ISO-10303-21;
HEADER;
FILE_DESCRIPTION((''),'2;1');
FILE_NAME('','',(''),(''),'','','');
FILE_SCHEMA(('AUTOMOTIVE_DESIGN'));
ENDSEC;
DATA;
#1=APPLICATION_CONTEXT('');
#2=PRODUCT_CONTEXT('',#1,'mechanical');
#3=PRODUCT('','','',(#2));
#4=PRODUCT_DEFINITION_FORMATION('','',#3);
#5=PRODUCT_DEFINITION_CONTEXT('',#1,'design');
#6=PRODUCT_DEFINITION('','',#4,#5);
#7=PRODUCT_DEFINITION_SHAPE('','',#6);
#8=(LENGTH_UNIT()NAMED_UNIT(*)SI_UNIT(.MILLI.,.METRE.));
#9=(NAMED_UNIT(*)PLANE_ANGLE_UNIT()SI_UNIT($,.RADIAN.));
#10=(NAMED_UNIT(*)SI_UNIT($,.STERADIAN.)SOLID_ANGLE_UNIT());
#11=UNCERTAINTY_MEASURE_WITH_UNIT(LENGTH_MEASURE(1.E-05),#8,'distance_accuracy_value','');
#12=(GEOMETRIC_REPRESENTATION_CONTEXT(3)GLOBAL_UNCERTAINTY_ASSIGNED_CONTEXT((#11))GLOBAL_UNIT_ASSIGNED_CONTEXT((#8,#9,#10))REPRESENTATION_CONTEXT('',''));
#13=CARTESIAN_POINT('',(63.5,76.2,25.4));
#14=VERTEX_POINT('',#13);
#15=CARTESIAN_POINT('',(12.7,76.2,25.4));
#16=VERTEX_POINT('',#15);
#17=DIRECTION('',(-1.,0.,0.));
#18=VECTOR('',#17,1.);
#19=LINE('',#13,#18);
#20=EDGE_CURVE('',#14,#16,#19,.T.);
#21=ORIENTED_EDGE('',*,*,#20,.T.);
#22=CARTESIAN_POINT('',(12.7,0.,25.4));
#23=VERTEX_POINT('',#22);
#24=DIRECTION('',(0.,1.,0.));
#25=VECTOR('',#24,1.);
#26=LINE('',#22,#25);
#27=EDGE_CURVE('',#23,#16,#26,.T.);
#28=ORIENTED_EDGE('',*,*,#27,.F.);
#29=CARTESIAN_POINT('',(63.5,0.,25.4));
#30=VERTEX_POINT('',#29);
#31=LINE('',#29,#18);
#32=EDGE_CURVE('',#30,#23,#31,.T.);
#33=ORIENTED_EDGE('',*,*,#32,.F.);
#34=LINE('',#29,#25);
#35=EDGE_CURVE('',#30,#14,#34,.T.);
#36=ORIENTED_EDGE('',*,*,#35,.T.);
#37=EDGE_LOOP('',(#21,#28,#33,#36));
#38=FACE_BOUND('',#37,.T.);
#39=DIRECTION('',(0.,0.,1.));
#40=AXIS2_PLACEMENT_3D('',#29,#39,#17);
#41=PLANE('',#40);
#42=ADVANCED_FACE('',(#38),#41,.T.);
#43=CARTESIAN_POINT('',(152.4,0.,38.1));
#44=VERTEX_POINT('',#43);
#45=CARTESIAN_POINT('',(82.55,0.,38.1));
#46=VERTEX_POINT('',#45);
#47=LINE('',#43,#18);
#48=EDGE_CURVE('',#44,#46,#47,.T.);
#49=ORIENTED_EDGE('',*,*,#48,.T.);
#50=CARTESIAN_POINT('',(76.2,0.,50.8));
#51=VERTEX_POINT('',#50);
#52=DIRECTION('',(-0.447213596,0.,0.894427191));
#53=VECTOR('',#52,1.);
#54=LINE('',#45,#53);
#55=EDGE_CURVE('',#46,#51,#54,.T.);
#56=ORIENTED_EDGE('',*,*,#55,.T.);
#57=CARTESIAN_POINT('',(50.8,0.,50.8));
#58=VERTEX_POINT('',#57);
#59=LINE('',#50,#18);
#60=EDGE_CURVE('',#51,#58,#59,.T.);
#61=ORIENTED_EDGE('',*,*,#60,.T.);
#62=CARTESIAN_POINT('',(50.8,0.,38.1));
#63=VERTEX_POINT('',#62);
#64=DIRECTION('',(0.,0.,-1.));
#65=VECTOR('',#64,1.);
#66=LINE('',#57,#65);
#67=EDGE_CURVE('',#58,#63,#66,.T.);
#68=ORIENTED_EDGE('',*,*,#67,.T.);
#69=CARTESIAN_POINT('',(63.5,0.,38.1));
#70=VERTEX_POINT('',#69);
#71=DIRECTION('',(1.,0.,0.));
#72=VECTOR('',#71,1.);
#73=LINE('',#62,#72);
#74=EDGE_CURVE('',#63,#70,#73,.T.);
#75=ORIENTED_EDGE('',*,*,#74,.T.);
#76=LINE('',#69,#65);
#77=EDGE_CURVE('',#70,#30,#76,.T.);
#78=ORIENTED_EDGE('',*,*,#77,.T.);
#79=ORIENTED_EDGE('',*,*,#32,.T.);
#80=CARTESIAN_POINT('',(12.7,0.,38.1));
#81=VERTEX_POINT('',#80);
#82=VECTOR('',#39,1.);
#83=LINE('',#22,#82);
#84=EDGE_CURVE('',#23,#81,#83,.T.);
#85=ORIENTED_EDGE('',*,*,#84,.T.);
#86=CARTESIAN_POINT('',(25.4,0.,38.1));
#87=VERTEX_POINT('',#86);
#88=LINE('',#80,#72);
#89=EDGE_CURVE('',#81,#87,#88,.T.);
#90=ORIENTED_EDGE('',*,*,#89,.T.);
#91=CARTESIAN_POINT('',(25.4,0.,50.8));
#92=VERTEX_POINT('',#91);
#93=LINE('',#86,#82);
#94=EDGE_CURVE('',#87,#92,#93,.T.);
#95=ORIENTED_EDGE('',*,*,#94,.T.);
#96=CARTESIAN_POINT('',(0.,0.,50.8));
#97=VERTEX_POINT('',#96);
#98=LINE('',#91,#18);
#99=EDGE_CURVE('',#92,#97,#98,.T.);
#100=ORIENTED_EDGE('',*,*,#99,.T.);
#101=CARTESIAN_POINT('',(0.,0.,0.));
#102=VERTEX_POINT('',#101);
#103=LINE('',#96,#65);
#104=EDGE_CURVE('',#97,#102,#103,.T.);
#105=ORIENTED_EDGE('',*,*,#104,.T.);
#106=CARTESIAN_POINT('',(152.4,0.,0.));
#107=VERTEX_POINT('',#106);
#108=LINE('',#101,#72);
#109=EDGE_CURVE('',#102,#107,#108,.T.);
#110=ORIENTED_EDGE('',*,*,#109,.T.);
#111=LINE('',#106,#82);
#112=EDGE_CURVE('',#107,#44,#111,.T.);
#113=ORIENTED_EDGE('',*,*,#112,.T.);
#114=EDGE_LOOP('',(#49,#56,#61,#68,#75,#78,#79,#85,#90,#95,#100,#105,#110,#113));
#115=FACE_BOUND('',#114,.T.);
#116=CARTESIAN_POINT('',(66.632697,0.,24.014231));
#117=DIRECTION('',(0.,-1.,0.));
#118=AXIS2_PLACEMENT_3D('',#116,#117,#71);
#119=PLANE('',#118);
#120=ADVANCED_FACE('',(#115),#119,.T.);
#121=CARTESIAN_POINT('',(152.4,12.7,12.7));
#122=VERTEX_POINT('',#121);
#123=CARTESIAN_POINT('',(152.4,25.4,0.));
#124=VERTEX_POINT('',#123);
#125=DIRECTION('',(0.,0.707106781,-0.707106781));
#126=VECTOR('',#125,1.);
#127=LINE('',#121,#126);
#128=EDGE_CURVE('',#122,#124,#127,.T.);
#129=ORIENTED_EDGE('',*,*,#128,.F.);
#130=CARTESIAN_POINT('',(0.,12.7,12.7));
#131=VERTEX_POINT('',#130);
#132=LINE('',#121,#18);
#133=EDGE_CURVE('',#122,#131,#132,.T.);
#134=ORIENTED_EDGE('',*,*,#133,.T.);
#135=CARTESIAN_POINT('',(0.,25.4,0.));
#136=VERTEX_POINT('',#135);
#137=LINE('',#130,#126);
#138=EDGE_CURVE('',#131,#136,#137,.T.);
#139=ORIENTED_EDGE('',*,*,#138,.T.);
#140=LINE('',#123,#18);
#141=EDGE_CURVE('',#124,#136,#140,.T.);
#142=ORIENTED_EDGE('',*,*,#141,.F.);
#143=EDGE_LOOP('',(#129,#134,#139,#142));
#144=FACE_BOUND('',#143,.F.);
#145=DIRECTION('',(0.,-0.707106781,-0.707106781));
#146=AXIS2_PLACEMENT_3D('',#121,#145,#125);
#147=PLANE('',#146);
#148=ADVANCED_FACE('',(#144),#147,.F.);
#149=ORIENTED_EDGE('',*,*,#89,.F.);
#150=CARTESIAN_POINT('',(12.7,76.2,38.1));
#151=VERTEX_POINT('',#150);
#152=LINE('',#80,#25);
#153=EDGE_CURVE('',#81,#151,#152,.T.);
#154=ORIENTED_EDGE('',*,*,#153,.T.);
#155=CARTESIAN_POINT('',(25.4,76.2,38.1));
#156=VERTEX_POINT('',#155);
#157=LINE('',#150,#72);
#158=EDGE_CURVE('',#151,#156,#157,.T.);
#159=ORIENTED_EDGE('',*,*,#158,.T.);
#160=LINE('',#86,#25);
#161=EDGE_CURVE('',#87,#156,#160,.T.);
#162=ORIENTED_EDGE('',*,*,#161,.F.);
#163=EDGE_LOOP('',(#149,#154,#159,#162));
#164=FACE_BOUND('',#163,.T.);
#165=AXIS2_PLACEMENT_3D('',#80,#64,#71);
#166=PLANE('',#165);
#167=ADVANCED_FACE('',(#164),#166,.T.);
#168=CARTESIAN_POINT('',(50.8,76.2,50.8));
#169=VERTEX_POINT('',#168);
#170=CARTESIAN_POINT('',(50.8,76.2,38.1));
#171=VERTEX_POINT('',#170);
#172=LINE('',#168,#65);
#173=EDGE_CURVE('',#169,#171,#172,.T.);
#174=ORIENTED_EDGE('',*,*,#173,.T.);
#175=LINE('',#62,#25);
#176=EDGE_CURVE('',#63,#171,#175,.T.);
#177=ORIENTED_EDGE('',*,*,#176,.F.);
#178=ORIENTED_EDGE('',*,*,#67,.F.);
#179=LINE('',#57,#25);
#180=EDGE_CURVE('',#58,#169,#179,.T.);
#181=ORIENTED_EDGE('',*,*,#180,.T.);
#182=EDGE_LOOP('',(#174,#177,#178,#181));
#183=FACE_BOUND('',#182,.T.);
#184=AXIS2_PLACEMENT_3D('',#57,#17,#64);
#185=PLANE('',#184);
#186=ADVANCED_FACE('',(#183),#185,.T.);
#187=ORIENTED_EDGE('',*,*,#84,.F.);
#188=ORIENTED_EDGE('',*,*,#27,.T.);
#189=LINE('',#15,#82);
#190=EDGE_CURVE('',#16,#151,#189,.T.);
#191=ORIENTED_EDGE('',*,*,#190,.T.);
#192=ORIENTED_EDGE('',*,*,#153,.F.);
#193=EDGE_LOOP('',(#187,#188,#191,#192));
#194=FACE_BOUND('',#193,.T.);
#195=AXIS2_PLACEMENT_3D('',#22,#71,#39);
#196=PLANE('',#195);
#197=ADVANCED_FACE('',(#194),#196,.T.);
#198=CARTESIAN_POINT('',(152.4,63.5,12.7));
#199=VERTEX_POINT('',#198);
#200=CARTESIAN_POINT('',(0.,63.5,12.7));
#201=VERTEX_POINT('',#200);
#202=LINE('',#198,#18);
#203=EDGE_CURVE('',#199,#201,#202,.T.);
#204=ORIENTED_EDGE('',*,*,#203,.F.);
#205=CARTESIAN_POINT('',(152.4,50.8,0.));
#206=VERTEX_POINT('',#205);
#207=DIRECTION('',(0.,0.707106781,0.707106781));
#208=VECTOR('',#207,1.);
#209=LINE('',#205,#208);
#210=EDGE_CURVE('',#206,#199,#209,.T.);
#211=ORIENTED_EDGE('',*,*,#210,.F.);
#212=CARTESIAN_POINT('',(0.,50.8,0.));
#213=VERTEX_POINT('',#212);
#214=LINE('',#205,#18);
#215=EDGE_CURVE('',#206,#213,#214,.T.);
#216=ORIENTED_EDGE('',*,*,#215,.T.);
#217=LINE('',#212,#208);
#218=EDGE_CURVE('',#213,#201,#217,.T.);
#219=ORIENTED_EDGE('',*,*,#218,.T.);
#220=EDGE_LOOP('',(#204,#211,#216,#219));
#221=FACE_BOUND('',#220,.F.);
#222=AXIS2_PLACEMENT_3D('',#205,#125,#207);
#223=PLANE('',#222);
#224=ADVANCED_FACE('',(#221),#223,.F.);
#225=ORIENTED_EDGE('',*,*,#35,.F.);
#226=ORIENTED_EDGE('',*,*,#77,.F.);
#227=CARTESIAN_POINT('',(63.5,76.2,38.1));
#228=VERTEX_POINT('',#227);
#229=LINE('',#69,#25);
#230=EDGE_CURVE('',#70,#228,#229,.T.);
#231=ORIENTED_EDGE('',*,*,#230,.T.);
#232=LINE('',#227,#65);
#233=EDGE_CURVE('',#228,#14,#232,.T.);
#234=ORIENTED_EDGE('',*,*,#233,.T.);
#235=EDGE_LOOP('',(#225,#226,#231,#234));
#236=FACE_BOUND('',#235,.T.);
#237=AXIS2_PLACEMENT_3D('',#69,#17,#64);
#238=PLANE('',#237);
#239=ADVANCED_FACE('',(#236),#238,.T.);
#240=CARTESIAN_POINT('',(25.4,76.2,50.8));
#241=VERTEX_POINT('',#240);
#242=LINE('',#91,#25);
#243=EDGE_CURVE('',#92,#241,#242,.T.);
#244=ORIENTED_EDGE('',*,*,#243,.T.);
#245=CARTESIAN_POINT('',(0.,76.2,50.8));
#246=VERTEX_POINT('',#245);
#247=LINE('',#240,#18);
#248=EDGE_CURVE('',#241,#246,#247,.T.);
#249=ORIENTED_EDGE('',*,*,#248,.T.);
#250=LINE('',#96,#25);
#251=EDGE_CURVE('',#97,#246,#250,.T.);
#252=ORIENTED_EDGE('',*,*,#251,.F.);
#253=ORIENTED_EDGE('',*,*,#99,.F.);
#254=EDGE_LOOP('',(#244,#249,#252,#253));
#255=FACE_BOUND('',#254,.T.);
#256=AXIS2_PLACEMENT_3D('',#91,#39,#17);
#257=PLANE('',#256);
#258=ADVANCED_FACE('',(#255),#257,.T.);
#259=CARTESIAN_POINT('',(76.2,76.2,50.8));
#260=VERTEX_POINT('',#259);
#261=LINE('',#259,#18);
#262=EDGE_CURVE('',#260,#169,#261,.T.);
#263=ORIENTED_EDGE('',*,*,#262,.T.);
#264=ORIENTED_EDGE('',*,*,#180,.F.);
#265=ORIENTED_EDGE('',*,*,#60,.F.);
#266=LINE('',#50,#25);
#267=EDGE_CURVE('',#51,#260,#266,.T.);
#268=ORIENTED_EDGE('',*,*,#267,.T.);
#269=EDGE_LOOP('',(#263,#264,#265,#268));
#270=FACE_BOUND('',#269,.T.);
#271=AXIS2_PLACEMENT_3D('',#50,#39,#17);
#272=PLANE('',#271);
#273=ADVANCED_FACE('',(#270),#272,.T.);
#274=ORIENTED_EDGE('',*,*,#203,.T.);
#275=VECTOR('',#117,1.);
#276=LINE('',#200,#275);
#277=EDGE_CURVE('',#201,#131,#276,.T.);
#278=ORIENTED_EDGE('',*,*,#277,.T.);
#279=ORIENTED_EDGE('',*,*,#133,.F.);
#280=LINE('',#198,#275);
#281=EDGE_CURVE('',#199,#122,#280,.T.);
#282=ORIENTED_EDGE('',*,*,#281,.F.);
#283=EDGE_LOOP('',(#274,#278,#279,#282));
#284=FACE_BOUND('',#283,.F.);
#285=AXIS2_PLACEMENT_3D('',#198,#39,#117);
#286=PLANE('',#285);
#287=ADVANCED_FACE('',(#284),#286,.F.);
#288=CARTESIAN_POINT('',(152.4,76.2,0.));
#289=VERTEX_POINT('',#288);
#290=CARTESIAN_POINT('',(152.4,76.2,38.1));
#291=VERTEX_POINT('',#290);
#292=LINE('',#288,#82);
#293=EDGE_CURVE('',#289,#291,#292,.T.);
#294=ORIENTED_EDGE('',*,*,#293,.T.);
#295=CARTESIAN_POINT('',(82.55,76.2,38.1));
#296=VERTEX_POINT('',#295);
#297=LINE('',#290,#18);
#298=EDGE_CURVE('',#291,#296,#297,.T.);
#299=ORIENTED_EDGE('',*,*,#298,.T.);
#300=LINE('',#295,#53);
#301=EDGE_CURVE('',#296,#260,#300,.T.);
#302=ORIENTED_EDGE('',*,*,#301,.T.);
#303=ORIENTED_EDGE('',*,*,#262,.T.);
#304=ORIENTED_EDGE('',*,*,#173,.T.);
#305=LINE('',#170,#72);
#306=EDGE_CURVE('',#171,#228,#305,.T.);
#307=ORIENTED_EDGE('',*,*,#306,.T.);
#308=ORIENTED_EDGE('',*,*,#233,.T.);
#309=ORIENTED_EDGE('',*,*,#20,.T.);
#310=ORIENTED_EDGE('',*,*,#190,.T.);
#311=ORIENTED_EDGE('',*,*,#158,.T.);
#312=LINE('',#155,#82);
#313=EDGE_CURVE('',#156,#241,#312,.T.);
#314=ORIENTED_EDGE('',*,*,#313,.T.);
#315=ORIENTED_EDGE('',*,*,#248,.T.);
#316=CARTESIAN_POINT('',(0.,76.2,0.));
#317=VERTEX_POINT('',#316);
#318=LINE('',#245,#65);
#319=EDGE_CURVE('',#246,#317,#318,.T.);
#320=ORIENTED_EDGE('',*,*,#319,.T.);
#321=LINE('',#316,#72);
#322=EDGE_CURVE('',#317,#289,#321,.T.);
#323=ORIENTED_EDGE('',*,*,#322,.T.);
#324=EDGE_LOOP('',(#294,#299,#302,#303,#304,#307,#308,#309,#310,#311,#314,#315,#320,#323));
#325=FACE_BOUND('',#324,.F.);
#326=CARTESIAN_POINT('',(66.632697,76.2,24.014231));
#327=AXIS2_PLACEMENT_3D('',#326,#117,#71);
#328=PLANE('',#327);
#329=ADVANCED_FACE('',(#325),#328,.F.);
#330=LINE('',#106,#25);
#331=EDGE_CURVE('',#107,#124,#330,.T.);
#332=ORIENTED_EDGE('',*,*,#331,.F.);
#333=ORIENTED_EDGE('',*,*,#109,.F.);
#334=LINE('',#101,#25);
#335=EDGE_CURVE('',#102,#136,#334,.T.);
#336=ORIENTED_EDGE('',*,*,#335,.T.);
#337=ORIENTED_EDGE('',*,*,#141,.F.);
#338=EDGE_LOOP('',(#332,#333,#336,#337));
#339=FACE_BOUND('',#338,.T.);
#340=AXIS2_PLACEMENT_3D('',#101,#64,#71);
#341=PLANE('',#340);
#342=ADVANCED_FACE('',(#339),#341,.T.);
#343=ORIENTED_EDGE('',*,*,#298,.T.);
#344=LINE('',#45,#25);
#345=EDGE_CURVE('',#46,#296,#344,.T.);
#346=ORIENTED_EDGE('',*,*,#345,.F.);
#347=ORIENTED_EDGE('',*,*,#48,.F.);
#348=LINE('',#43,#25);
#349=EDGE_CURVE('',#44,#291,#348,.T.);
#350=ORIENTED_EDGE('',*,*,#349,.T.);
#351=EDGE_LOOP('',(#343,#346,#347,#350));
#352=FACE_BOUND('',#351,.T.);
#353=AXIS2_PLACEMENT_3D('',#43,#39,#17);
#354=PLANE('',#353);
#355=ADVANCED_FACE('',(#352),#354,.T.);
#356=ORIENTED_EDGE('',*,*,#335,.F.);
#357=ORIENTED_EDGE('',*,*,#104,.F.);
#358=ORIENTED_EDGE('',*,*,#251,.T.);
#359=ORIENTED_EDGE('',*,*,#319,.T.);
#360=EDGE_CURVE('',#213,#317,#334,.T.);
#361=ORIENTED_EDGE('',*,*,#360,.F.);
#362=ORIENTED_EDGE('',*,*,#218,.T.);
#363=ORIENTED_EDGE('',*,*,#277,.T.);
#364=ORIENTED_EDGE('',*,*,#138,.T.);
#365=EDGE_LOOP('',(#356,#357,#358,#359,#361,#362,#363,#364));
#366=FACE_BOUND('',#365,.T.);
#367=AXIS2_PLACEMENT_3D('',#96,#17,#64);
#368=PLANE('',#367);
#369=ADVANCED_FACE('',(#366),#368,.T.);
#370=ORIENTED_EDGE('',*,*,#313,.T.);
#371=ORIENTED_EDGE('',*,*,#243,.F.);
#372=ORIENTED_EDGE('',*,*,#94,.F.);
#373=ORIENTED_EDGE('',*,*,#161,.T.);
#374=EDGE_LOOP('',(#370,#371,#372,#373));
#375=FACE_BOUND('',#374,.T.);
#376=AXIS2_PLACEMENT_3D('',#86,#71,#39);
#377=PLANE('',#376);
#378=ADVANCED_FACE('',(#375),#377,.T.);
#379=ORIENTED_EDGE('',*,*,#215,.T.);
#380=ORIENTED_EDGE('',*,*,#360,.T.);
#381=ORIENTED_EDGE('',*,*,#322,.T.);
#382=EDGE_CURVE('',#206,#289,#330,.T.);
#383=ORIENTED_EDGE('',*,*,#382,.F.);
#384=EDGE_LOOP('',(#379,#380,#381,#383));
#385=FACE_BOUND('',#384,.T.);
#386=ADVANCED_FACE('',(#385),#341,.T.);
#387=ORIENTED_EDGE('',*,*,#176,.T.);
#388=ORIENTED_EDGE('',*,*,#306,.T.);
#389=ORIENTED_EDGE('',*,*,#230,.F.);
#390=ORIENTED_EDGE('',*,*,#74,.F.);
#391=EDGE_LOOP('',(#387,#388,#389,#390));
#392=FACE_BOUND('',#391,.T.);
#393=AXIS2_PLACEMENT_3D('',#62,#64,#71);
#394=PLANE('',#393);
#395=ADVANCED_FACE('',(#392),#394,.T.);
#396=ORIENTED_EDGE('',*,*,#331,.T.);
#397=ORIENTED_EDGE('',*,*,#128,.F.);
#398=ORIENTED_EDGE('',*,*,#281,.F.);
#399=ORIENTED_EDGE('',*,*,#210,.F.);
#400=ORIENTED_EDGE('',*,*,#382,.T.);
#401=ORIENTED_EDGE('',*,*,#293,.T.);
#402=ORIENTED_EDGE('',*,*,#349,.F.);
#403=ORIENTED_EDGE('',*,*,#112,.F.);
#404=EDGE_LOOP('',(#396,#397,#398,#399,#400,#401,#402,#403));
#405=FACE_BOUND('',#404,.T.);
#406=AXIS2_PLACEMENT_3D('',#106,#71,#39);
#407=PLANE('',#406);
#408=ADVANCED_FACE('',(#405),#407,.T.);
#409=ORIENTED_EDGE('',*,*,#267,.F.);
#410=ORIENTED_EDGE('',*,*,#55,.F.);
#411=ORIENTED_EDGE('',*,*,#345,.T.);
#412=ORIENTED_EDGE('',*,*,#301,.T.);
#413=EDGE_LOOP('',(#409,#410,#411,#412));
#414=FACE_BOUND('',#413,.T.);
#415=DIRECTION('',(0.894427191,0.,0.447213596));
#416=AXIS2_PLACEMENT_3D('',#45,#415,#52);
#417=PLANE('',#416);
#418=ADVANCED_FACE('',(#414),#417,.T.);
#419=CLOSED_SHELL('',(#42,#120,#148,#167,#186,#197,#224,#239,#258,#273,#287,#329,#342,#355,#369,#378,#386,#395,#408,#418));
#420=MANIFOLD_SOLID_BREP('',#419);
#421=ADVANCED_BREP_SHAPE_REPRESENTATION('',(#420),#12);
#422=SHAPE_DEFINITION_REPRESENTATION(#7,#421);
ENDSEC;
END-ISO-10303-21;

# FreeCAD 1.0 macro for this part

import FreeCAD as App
import Part
import Sketcher
Q = App.Units.Quantity


def add_polygon(sketch, points):
    """Adds a closed chain of lines whose ends are joined by coincident constraints."""
    first, n = sketch.GeometryCount, len(points)
    for a, b in zip(points, points[1:] + points[:1]):
        sketch.addGeometry(Part.LineSegment(App.Vector(*a, 0), App.Vector(*b, 0)), False)
    for i in range(n):
        sketch.addConstraint(Sketcher.Constraint("Coincident", first + i, 2, first + (i + 1) % n, 1))

doc = App.newDocument("Part")
body = doc.addObject("PartDesign::Body", "Body")

# Sketch on XZ plane
sketch1 = body.newObject("Sketcher::SketchObject", "Sketch")
sketch1.AttachmentSupport = (doc.getObject("XZ_Plane"), [""])
sketch1.MapMode = "FlatFace"
add_polygon(sketch1, [(0, 50.8), (0, 0), (152.4, 0), (152.4, 38.1), (82.55, 38.1), (76.2, 50.8), (50.8, 50.8), (50.8, 38.1), (63.5, 38.1), (63.5, 25.4), (12.7, 25.4), (12.7, 38.1), (25.4, 38.1), (25.4, 50.8)])  # lines 0-13
sketch1.addConstraint([
    Sketcher.Constraint("Vertical", 0),
    Sketcher.Constraint("Horizontal", 1),
    Sketcher.Constraint("Vertical", 2),
    Sketcher.Constraint("Horizontal", 3),
    Sketcher.Constraint("Horizontal", 5),
    Sketcher.Constraint("Vertical", 6),
    Sketcher.Constraint("Horizontal", 7),
    Sketcher.Constraint("Vertical", 8),
    Sketcher.Constraint("Horizontal", 9),
    Sketcher.Constraint("Vertical", 10),
    Sketcher.Constraint("Horizontal", 11),
    Sketcher.Constraint("Vertical", 12),
    Sketcher.Constraint("Horizontal", 13),
    Sketcher.Constraint("Coincident", 0, 2, -1, 1),
    Sketcher.Constraint("Horizontal", 3, 2, 6, 2),
    Sketcher.Constraint("Horizontal", 7, 2, 10, 2),
    Sketcher.Constraint("Horizontal", 5, 2, 12, 2),
    Sketcher.Constraint("Equal", 7, 11),
    Sketcher.Constraint("Equal", 5, 13),
    Sketcher.Constraint("Equal", 9, 0),
    Sketcher.Constraint("Equal", 11, 6),
    Sketcher.Constraint("Equal", 6, 8),
    Sketcher.Constraint("DistanceX", 1, 1, 1, 2, Q("6 in")),
    Sketcher.Constraint("DistanceX", 5, 2, 5, 1, Q("1 in")),
    Sketcher.Constraint("DistanceX", 9, 2, 9, 1, Q("2 in")),
    Sketcher.Constraint("DistanceX", 7, 1, 7, 2, Q("0.5 in")),
    Sketcher.Constraint("DistanceX", 3, 2, 3, 1, Q("2.75 in")),
])
pad1 = body.newObject("PartDesign::Pad", "Pad")
pad1.Profile = sketch1
pad1.Length = Q("3 in")
pad1.Reversed = True

# Sketch on YZ plane
sketch2 = body.newObject("Sketcher::SketchObject", "Sketch001")
sketch2.AttachmentSupport = (doc.getObject("YZ_Plane"), [""])
sketch2.MapMode = "FlatFace"
sketch2.AttachmentOffset = App.Placement(App.Vector(0, 0, 6 * 25.4), App.Rotation())
add_polygon(sketch2, [(12.7, 12.7), (25.4, 0), (50.8, 0), (63.5, 12.7)])  # lines 0-3
sketch2.addConstraint([
    Sketcher.Constraint("Horizontal", 1),
    Sketcher.Constraint("Horizontal", 3),
    Sketcher.Constraint("PointOnObject", 0, 2, -1),
    Sketcher.Constraint("Perpendicular", 0, 2),
    Sketcher.Constraint("Equal", 0, 2),
    Sketcher.Constraint("DistanceX", 1, 1, 1, 2, Q("1 in")),
    Sketcher.Constraint("DistanceX", 3, 2, 3, 1, Q("2 in")),
    Sketcher.Constraint("DistanceX", -1, 1, 0, 2, Q("1 in")),
])
pocket1 = body.newObject("PartDesign::Pocket", "Pocket")
pocket1.Profile = sketch2
pocket1.Length = Q("6 in")

doc.recompute()
